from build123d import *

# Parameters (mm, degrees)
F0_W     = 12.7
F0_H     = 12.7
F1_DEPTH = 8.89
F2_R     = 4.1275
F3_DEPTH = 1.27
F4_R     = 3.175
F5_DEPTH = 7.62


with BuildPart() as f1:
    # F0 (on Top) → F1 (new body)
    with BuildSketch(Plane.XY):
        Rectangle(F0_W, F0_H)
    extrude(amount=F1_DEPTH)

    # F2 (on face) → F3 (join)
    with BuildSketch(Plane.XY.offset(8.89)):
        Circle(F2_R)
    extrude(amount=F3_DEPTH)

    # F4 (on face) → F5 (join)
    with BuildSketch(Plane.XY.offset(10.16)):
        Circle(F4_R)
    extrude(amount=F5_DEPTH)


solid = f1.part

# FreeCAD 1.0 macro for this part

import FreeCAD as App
import Part
import Sketcher

V = App.Vector
Q = App.Units.Quantity


def add_polygon(sketch, points):
    """Adds a closed chain of lines whose ends are joined by coincident constraints."""
    first, n = sketch.GeometryCount, len(points)
    for a, b in zip(points, points[1:] + points[:1]):
        sketch.addGeometry(Part.LineSegment(App.Vector(*a, 0), App.Vector(*b, 0)), False)
    for i in range(n):
        sketch.addConstraint(Sketcher.Constraint("Coincident", first + i, 2, first + (i + 1) % n, 1))

doc = App.newDocument("Part")
params = doc.addObject("Spreadsheet::Sheet", "Params")
for row, (alias, value) in enumerate([
    ("sketch1_width", "0.5 in"),
    ("pad1_length", "0.35 in"),
    ("sketch2_diameter", "0.325 in"),
    ("pad2_length", "0.05 in"),
    ("sketch3_diameter", "0.25 in"),
    ("pad3_length", "0.3 in"),
], start=1):
    params.set(f"A{row}", alias)
    params.set(f"B{row}", "=" + value)
    params.setAlias(f"B{row}", alias)

body = doc.addObject("PartDesign::Body", "Body")

# Sketch on XY plane
sketch1 = doc.addObject("Sketcher::SketchObject", "Sketch")
body.addObject(sketch1)
sketch1.AttachmentSupport = (doc.XY_Plane, [""])
sketch1.MapMode = "FlatFace"
add_polygon(sketch1, [(-6.35, 6.35), (-6.35, -6.35), (6.35, -6.35), (6.35, 6.35)])  # lines 0-3
sketch1.addConstraint([
    Sketcher.Constraint("Vertical", 0),
    Sketcher.Constraint("Horizontal", 1),
    Sketcher.Constraint("Vertical", 2),
    Sketcher.Constraint("Horizontal", 3),
    Sketcher.Constraint("Symmetric", 0, 2, 2, 2, -1, 1),
    Sketcher.Constraint("Equal", 3, 0),
    Sketcher.Constraint("DistanceX", 1, 1, 1, 2, Q("0.5 in")),
])
sketch1.setExpression("Constraints[10]", "Params.sketch1_width")
pad1 = doc.addObject("PartDesign::Pad", "Pad")
body.addObject(pad1)
pad1.Profile = sketch1
pad1.setExpression("Length", "Params.pad1_length")

# Sketch on XY plane
sketch2 = doc.addObject("Sketcher::SketchObject", "Sketch001")
body.addObject(sketch2)
sketch2.AttachmentSupport = (doc.XY_Plane, [""])
sketch2.MapMode = "FlatFace"
sketch2.AttachmentOffset = App.Placement(V(0, 0, 0.35 * 25.4), App.Rotation())
sketch2.addGeometry(Part.Circle(V(0, 0, 0), V(0, 0, 1), 4.1275), False)
sketch2.addConstraint([
    Sketcher.Constraint("Coincident", 0, 3, -1, 1),
    Sketcher.Constraint("Diameter", 0, Q("0.325 in")),
])
sketch2.setExpression("Constraints[1]", "Params.sketch2_diameter")
pad2 = doc.addObject("PartDesign::Pad", "Pad001")
body.addObject(pad2)
pad2.Profile = sketch2
pad2.setExpression("Length", "Params.pad2_length")

# Sketch on XY plane
sketch3 = doc.addObject("Sketcher::SketchObject", "Sketch002")
body.addObject(sketch3)
sketch3.AttachmentSupport = (doc.XY_Plane, [""])
sketch3.MapMode = "FlatFace"
sketch3.AttachmentOffset = App.Placement(V(0, 0, 0.4 * 25.4), App.Rotation())
sketch3.addGeometry(Part.Circle(V(0, 0, 0), V(0, 0, 1), 3.175), False)
sketch3.addConstraint([
    Sketcher.Constraint("Coincident", 0, 3, -1, 1),
    Sketcher.Constraint("Diameter", 0, Q("0.25 in")),
])
sketch3.setExpression("Constraints[1]", "Params.sketch3_diameter")
pad3 = doc.addObject("PartDesign::Pad", "Pad002")
body.addObject(pad3)
pad3.Profile = sketch3
pad3.setExpression("Length", "Params.pad3_length")

doc.recompute()
